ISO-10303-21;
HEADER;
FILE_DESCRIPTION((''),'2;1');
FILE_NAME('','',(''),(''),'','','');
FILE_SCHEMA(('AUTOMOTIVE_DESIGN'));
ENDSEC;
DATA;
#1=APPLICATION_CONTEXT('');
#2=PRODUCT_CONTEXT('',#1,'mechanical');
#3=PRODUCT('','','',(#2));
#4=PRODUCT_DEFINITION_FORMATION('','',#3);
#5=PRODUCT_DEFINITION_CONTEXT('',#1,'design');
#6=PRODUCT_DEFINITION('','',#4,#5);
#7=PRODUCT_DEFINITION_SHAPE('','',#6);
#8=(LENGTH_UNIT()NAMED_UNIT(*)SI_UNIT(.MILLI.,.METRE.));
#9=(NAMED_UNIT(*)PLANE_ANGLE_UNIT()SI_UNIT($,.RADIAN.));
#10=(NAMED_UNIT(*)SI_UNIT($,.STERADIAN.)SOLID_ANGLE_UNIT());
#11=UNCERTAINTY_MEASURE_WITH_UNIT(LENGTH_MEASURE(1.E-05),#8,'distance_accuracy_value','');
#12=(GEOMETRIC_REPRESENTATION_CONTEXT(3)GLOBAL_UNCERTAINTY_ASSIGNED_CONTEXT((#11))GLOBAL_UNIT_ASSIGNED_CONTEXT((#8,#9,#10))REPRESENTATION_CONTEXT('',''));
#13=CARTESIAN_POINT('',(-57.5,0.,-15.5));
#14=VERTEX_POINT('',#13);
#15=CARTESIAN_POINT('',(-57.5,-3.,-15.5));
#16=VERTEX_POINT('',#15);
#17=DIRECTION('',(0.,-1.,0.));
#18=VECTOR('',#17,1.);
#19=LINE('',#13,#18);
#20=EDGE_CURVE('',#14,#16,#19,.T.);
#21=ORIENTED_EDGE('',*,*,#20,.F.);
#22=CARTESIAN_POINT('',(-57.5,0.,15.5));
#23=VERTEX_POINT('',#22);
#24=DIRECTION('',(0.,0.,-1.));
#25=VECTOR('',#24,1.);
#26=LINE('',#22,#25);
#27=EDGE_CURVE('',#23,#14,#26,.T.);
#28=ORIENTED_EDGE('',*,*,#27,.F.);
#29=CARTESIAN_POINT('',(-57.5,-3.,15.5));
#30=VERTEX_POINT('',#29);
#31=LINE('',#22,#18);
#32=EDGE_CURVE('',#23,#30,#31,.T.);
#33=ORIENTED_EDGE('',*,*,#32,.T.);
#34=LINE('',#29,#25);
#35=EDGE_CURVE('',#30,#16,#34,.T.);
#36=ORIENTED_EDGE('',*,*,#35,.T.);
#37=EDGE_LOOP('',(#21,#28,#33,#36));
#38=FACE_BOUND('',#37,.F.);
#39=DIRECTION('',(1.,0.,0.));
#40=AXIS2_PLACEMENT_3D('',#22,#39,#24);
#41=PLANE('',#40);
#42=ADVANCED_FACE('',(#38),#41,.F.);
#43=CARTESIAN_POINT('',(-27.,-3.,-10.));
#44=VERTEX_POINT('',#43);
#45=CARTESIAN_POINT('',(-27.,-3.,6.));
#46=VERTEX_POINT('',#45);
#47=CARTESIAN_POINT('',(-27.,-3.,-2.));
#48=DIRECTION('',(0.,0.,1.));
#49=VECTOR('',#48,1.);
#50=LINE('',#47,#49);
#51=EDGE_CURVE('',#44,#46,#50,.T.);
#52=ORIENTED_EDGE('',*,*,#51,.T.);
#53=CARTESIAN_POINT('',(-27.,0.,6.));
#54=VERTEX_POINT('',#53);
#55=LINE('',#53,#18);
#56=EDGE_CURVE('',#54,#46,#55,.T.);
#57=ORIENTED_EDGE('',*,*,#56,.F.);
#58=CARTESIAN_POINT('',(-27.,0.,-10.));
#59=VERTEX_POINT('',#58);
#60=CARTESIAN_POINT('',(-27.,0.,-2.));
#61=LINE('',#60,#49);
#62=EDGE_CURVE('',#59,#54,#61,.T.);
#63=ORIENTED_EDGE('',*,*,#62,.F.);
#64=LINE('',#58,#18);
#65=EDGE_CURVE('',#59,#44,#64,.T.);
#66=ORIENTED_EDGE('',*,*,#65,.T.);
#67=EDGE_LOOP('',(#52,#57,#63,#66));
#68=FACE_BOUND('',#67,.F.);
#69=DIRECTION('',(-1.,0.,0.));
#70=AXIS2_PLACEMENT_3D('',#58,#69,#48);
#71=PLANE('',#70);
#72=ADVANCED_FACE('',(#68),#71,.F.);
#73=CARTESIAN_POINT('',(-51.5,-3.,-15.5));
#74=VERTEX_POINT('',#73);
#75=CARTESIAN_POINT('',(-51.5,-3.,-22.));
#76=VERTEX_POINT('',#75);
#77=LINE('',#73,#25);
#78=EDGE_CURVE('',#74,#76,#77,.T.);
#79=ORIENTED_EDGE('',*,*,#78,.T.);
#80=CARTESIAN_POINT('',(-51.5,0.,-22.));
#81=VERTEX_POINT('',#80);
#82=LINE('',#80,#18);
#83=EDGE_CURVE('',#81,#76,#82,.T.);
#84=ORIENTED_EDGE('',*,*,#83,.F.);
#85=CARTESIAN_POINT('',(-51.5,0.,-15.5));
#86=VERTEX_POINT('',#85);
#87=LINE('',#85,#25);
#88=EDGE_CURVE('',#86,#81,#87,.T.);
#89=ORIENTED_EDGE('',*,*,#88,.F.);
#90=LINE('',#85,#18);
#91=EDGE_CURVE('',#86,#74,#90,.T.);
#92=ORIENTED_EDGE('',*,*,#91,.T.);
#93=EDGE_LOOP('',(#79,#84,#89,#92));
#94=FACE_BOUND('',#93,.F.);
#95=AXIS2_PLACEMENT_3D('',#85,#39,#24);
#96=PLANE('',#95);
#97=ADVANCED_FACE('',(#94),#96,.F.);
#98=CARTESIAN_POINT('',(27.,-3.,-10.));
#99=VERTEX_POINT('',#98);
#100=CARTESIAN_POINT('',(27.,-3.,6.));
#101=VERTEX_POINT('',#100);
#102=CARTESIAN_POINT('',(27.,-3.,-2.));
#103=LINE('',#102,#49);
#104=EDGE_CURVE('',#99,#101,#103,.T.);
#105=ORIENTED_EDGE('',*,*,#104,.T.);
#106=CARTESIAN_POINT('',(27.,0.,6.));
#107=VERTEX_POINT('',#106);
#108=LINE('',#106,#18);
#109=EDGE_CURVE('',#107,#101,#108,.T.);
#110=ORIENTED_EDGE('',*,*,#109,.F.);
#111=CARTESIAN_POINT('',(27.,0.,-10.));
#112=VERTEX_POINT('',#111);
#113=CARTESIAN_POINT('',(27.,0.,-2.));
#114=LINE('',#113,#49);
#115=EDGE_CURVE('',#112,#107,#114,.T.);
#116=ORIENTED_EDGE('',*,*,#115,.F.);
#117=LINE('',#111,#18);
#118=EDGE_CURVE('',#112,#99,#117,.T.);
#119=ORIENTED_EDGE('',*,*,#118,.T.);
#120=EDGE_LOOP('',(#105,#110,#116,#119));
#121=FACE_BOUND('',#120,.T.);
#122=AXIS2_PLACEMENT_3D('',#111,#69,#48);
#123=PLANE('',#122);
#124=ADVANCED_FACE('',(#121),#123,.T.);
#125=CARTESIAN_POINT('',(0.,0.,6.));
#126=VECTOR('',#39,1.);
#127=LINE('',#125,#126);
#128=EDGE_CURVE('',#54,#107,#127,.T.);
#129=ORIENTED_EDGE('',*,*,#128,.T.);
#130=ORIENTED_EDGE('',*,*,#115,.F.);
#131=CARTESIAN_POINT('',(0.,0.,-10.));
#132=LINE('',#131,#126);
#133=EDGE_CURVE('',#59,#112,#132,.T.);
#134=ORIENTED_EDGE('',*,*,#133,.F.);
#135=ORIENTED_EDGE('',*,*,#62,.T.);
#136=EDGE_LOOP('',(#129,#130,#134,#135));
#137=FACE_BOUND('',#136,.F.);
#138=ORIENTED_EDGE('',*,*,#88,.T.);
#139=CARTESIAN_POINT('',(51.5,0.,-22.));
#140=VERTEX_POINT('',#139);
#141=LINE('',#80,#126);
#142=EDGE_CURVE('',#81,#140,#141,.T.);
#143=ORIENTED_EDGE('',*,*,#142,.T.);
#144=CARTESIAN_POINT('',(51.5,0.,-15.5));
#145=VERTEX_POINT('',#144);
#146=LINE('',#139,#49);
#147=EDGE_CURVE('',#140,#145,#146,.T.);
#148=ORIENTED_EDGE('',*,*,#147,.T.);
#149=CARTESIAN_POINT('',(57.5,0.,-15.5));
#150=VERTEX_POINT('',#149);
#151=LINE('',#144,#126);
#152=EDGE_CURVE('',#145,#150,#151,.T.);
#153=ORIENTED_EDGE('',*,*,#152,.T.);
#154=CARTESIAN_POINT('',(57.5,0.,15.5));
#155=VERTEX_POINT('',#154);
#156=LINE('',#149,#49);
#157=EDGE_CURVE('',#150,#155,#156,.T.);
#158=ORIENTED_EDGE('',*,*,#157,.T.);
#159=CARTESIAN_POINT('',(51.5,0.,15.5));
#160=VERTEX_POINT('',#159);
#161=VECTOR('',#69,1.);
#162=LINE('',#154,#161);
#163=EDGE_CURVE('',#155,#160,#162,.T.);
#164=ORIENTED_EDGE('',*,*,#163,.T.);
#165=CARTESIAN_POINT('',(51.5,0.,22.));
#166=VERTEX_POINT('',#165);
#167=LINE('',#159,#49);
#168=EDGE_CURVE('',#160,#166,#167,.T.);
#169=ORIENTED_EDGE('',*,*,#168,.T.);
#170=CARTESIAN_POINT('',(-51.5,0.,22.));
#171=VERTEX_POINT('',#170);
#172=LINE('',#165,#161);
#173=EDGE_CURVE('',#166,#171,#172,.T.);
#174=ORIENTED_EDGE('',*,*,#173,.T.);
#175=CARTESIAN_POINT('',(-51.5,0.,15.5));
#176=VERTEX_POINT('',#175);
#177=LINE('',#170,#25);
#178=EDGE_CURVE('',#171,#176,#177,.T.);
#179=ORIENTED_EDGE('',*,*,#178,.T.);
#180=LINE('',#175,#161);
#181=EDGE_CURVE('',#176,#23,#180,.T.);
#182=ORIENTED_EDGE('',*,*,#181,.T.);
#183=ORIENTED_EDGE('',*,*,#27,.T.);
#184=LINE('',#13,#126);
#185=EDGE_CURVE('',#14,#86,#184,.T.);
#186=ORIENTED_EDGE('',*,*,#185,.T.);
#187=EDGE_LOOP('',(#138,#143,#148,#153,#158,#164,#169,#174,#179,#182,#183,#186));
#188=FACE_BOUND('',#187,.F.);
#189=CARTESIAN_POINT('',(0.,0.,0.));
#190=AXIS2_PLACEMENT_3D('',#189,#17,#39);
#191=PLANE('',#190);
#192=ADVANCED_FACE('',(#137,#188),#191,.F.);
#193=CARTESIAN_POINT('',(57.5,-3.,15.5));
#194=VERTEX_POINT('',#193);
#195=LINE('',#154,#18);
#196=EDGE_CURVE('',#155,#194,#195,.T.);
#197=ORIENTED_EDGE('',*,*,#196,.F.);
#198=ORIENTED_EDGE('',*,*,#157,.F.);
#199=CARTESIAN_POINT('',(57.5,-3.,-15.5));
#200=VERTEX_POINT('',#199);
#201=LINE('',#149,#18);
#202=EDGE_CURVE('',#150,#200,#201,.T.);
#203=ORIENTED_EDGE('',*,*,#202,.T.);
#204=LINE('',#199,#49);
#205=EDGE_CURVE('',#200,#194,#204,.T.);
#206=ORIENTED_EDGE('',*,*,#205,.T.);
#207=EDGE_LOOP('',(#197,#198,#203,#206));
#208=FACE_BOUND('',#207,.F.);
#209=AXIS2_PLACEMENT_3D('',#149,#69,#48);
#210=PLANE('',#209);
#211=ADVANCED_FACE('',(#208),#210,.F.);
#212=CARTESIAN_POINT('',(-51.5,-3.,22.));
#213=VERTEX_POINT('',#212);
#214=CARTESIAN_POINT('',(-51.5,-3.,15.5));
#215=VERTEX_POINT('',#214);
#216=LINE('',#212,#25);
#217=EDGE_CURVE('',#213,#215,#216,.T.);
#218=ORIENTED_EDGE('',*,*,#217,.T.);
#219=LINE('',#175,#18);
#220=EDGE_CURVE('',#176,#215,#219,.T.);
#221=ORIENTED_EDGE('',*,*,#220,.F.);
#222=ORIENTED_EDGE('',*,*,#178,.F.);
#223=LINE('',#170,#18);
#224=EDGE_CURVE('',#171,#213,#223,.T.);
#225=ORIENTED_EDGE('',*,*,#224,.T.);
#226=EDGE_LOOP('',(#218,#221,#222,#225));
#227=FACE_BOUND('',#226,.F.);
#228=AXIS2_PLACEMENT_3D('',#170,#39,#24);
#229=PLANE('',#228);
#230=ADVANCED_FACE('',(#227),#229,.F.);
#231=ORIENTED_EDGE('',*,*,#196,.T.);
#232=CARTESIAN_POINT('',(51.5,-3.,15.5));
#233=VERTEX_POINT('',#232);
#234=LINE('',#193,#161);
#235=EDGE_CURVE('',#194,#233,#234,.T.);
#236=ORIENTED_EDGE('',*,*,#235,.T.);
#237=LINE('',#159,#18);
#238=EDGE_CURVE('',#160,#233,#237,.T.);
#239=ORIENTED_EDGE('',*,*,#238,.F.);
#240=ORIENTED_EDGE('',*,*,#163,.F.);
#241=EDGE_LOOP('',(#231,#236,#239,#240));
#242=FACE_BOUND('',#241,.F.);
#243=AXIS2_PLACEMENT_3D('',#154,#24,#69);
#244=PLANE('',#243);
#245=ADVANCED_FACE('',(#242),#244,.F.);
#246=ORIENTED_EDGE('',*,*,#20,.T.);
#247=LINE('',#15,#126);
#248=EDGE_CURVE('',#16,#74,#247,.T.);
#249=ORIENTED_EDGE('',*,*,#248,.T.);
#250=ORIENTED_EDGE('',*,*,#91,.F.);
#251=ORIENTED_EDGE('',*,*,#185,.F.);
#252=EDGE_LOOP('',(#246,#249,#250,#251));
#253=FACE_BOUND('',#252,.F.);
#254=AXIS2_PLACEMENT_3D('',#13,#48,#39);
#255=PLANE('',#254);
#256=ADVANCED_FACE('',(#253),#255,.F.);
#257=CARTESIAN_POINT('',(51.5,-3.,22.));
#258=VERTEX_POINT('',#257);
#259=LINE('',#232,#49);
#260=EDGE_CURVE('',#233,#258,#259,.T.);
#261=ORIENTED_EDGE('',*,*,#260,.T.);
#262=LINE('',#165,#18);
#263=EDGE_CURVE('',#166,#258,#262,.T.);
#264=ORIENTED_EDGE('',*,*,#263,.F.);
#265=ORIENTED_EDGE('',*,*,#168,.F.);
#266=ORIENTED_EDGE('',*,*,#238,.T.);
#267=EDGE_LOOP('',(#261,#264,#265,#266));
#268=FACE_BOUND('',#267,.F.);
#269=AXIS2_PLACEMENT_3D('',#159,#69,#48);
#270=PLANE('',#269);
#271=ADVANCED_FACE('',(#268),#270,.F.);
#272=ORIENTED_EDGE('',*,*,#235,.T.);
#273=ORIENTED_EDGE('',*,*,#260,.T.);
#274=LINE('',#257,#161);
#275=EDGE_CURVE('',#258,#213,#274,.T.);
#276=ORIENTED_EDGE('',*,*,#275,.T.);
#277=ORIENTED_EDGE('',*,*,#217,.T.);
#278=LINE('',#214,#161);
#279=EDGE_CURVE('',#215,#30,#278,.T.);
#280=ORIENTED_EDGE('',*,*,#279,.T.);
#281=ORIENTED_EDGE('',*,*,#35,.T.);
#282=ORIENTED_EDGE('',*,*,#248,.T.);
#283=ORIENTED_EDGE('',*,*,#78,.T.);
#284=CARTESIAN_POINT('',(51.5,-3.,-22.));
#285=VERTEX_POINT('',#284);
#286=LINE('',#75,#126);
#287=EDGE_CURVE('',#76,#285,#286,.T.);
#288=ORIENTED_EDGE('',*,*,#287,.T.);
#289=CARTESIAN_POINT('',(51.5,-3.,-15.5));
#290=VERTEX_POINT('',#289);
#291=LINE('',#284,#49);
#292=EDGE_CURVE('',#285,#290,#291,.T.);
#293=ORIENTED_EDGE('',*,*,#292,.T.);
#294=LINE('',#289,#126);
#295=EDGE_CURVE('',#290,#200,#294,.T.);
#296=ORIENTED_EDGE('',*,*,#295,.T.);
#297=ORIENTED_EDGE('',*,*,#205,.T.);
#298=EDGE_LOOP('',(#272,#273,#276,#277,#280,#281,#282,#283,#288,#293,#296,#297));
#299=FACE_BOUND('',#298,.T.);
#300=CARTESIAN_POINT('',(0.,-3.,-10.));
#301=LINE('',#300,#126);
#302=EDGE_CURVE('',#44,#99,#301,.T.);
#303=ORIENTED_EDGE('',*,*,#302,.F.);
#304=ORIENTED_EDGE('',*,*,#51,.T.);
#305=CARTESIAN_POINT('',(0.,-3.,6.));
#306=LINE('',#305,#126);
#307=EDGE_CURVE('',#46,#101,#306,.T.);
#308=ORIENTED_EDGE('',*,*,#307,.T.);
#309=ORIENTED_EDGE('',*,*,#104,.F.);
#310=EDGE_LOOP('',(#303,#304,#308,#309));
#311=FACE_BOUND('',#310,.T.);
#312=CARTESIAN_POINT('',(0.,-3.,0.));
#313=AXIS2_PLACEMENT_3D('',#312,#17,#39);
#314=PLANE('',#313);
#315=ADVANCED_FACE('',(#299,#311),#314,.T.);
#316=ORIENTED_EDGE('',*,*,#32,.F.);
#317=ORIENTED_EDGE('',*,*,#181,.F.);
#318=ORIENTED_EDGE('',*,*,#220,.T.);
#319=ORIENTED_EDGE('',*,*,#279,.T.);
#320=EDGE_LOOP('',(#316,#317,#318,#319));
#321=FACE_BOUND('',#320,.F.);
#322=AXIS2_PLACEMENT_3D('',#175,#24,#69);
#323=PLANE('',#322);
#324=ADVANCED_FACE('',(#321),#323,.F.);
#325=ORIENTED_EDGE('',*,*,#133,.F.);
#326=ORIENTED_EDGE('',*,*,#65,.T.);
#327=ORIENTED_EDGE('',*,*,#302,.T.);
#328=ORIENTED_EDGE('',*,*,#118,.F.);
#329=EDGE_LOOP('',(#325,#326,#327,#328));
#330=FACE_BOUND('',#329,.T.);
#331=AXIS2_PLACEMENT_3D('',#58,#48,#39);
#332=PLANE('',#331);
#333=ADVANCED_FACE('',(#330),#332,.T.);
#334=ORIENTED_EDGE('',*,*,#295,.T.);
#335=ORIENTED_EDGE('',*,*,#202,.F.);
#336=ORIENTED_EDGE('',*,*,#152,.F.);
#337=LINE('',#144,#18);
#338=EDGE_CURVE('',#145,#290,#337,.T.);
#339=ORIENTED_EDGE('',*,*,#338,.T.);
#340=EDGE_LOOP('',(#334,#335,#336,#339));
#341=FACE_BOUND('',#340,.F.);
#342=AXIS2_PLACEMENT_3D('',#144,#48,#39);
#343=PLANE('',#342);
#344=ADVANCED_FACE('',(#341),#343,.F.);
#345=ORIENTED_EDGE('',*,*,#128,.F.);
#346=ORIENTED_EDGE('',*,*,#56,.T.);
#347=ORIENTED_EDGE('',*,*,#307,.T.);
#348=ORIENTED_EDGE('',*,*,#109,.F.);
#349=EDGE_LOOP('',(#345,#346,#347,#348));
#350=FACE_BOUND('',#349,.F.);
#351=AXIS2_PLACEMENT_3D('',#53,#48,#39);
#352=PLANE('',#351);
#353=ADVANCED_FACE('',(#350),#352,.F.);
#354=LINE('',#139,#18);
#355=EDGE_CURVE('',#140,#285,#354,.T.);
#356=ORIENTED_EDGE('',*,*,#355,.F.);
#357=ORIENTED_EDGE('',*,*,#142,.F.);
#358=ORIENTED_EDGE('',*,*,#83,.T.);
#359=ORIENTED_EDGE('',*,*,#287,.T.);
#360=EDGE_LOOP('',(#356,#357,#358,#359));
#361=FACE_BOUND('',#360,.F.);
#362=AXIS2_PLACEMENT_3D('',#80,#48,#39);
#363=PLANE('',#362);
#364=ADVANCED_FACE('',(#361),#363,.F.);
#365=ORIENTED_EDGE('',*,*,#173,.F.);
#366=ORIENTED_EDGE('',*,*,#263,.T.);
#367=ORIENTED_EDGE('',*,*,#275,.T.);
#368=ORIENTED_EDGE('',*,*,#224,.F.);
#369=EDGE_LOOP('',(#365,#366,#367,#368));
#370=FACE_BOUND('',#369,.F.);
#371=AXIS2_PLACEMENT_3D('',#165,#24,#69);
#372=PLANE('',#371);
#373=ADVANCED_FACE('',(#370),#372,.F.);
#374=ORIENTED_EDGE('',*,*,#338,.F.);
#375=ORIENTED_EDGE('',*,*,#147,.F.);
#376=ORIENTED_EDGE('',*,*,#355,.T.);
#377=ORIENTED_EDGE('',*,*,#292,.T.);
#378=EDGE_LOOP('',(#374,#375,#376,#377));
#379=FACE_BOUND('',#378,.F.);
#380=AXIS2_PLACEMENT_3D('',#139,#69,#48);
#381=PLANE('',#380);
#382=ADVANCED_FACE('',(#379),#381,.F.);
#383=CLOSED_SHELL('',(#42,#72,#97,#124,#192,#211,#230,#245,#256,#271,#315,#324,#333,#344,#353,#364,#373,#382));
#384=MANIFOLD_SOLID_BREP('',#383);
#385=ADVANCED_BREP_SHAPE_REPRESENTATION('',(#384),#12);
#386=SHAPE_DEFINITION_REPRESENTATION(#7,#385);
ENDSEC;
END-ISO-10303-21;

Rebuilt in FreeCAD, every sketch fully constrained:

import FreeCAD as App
import Part
import Sketcher

V = App.Vector


def add_polygon(sketch, points):
    """Adds a closed chain of lines whose ends are joined by coincident constraints."""
    first, n = sketch.GeometryCount, len(points)
    for a, b in zip(points, points[1:] + points[:1]):
        sketch.addGeometry(Part.LineSegment(App.Vector(*a, 0), App.Vector(*b, 0)), False)
    for i in range(n):
        sketch.addConstraint(Sketcher.Constraint("Coincident", first + i, 2, first + (i + 1) % n, 1))

doc = App.newDocument("Part")
params = doc.addObject("Spreadsheet::Sheet", "Params")
for row, (alias, value) in enumerate([
    ("sketch1_width", "103 mm"),
    ("sketch1_width2", "6 mm"),
    ("sketch1_width3", "54 mm"),
    ("sketch1_height", "31 mm"),
    ("sketch1_height2", "16 mm"),
    ("pad1_length", "3 mm"),
], start=1):
    params.set(f"A{row}", alias)
    params.set(f"B{row}", "=" + value)
    params.setAlias(f"B{row}", alias)

body = doc.addObject("PartDesign::Body", "Body")

# Sketch on XZ plane
sketch1 = body.newObject("Sketcher::SketchObject", "Sketch")
sketch1.AttachmentSupport = (doc.getObject("XZ_Plane"), [""])
sketch1.MapMode = "FlatFace"
add_polygon(sketch1, [(-52, -22), (52, -22), (52, -16), (58, -16), (58, 16), (52, 16), (52, 22), (-52, 22), (-52, 16), (-58, 16), (-58, -16), (-52, -16)])  # lines 0-11
add_polygon(sketch1, [(27, -10), (-27, -10), (-27, 6), (27, 6)])  # lines 12-15
sketch1.addConstraint(Sketcher.Constraint("Horizontal", 0))
sketch1.addConstraint(Sketcher.Constraint("Vertical", 1))
sketch1.addConstraint(Sketcher.Constraint("Horizontal", 2))
sketch1.addConstraint(Sketcher.Constraint("Vertical", 3))
sketch1.addConstraint(Sketcher.Constraint("Horizontal", 4))
sketch1.addConstraint(Sketcher.Constraint("Vertical", 5))
sketch1.addConstraint(Sketcher.Constraint("Horizontal", 6))
sketch1.addConstraint(Sketcher.Constraint("Vertical", 7))
sketch1.addConstraint(Sketcher.Constraint("Horizontal", 8))
sketch1.addConstraint(Sketcher.Constraint("Vertical", 9))
sketch1.addConstraint(Sketcher.Constraint("Horizontal", 10))
sketch1.addConstraint(Sketcher.Constraint("Vertical", 11))
sketch1.addConstraint(Sketcher.Constraint("Horizontal", 12))
sketch1.addConstraint(Sketcher.Constraint("Vertical", 13))
sketch1.addConstraint(Sketcher.Constraint("Horizontal", 14))
sketch1.addConstraint(Sketcher.Constraint("Vertical", 15))
sketch1.addConstraint(Sketcher.Constraint("Symmetric", 0, 2, 6, 2, -1, 1))
sketch1.addConstraint(Sketcher.Constraint("Symmetric", 2, 2, 8, 2, -1, 1))
sketch1.addConstraint(Sketcher.Constraint("Symmetric", 4, 2, 10, 2, -1, 1))
sketch1.addConstraint(Sketcher.Constraint("Symmetric", 4, 2, 7, 2, -2))
sketch1.addConstraint(Sketcher.Constraint("DistanceX", 0, 1, 0, 2, 103.0))
sketch1.addConstraint(Sketcher.Constraint("DistanceX", 2, 1, 2, 2, 6.0))
sketch1.addConstraint(Sketcher.Constraint("DistanceX", 12, 2, 12, 1, 54.0))
sketch1.addConstraint(Sketcher.Constraint("DistanceY", 3, 1, 3, 2, 31.0))
sketch1.addConstraint(Sketcher.Constraint("DistanceY", 13, 1, 13, 2, 16.0))
sketch1.addConstraint(Sketcher.Constraint("DistanceY", 1, 1, 1, 2, 6.5))
sketch1.addConstraint(Sketcher.Constraint("DistanceX", 12, 2, -1, 1, 27.0))
sketch1.addConstraint(Sketcher.Constraint("DistanceY", 12, 2, -1, 1, 10.0))
sketch1.setExpression("Constraints[36]", "Params.sketch1_width")
sketch1.setExpression("Constraints[37]", "Params.sketch1_width2")
sketch1.setExpression("Constraints[38]", "Params.sketch1_width3")
sketch1.setExpression("Constraints[39]", "Params.sketch1_height")
sketch1.setExpression("Constraints[40]", "Params.sketch1_height2")
pad1 = body.newObject("PartDesign::Pad", "Pad")
pad1.Profile = sketch1
pad1.setExpression("Length", "Params.pad1_length")

doc.recompute()
